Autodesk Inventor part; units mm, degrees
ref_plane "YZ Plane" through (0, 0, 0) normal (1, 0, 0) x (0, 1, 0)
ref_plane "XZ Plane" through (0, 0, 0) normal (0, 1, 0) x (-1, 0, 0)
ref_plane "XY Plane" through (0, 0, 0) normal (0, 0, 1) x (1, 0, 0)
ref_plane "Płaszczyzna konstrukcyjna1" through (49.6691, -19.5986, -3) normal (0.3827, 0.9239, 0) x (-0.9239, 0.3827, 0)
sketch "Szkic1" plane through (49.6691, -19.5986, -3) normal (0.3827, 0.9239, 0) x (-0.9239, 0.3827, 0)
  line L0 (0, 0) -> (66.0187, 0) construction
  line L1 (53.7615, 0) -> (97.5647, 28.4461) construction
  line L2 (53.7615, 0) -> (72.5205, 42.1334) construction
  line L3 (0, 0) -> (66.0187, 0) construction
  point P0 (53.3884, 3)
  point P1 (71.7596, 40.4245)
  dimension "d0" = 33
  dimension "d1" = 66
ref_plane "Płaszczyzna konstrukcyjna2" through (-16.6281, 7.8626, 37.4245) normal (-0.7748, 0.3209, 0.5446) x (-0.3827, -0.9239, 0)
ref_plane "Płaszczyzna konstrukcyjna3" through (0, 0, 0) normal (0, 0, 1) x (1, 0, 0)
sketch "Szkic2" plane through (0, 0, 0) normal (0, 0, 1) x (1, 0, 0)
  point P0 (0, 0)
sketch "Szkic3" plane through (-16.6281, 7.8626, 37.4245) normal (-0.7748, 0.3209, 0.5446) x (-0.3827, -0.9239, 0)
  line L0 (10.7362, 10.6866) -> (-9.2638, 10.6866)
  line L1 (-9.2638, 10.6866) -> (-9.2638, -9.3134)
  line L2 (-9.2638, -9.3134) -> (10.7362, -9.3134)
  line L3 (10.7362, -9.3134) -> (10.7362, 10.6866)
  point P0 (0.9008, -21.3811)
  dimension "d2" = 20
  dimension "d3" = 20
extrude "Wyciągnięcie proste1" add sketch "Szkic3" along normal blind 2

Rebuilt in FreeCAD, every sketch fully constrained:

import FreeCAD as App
import Part
import Sketcher


def add_polygon(sketch, points):
    """Adds a closed chain of lines whose ends are joined by coincident constraints."""
    first, n = sketch.GeometryCount, len(points)
    for a, b in zip(points, points[1:] + points[:1]):
        sketch.addGeometry(Part.LineSegment(App.Vector(*a, 0), App.Vector(*b, 0)), False)
    for i in range(n):
        sketch.addConstraint(Sketcher.Constraint("Coincident", first + i, 2, first + (i + 1) % n, 1))

doc = App.newDocument("Part")
body = doc.addObject("PartDesign::Body", "Body")

# Sketch on an angled plane
sketch1 = body.newObject("Sketcher::SketchObject", "Sketch")
sketch1.Placement = App.Placement(App.Vector(-16.6281, 7.8626, 37.4245), App.Rotation(App.Vector(-0.382660045, -0.923889219, -0.000016439), App.Vector(0.503174731, -0.208421798, 0.838674874), App.Vector(-0.774846101, 0.320919094, 0.544632404), "ZXY"))
add_polygon(sketch1, [(11, -9), (11, 11), (-9, 11), (-9, -9)])  # lines 0-3
sketch1.addConstraint([
    Sketcher.Constraint("Vertical", 0),
    Sketcher.Constraint("Horizontal", 1),
    Sketcher.Constraint("Vertical", 2),
    Sketcher.Constraint("Horizontal", 3),
    Sketcher.Constraint("Equal", 3, 0),
    Sketcher.Constraint("DistanceX", 1, 2, 1, 1, 20.0),
    Sketcher.Constraint("DistanceX", -1, 1, 0, 2, 10.7362),
    Sketcher.Constraint("DistanceY", -1, 1, 0, 2, 10.6866),
])
pad1 = body.newObject("PartDesign::Pad", "Pad")
pad1.Profile = sketch1
pad1.Length = 2

doc.recompute()
